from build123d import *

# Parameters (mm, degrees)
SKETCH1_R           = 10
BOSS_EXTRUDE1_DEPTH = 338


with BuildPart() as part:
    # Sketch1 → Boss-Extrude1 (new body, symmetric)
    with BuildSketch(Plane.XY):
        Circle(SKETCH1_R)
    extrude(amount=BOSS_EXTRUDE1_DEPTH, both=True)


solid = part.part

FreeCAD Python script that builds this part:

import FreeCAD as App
import Part
import Sketcher

doc = App.newDocument("Part")
params = doc.addObject("Spreadsheet::Sheet", "Params")
for row, (alias, value) in enumerate([
    ("sketch1_diameter", "20 mm"),
    ("pad1_length", "676 mm"),
], start=1):
    params.set(f"A{row}", alias)
    params.set(f"B{row}", "=" + value)
    params.setAlias(f"B{row}", alias)

body = doc.addObject("PartDesign::Body", "Body")

# Sketch on XY plane
sketch1 = body.newObject("Sketcher::SketchObject", "Sketch")
sketch1.AttachmentSupport = (doc.getObject("XY_Plane"), [""])
sketch1.MapMode = "FlatFace"
sketch1.addGeometry(Part.Circle(App.Vector(0, 0, 0), App.Vector(0, 0, 1), 10), False)
sketch1.addConstraint([
    Sketcher.Constraint("Coincident", 0, 3, -1, 1),
    Sketcher.Constraint("Diameter", 0, 20.0),
])
sketch1.setExpression("Constraints[1]", "Params.sketch1_diameter")
pad1 = body.newObject("PartDesign::Pad", "Pad")
pad1.Profile = sketch1
pad1.setExpression("Length", "Params.pad1_length")
pad1.Midplane = True

doc.recompute()
